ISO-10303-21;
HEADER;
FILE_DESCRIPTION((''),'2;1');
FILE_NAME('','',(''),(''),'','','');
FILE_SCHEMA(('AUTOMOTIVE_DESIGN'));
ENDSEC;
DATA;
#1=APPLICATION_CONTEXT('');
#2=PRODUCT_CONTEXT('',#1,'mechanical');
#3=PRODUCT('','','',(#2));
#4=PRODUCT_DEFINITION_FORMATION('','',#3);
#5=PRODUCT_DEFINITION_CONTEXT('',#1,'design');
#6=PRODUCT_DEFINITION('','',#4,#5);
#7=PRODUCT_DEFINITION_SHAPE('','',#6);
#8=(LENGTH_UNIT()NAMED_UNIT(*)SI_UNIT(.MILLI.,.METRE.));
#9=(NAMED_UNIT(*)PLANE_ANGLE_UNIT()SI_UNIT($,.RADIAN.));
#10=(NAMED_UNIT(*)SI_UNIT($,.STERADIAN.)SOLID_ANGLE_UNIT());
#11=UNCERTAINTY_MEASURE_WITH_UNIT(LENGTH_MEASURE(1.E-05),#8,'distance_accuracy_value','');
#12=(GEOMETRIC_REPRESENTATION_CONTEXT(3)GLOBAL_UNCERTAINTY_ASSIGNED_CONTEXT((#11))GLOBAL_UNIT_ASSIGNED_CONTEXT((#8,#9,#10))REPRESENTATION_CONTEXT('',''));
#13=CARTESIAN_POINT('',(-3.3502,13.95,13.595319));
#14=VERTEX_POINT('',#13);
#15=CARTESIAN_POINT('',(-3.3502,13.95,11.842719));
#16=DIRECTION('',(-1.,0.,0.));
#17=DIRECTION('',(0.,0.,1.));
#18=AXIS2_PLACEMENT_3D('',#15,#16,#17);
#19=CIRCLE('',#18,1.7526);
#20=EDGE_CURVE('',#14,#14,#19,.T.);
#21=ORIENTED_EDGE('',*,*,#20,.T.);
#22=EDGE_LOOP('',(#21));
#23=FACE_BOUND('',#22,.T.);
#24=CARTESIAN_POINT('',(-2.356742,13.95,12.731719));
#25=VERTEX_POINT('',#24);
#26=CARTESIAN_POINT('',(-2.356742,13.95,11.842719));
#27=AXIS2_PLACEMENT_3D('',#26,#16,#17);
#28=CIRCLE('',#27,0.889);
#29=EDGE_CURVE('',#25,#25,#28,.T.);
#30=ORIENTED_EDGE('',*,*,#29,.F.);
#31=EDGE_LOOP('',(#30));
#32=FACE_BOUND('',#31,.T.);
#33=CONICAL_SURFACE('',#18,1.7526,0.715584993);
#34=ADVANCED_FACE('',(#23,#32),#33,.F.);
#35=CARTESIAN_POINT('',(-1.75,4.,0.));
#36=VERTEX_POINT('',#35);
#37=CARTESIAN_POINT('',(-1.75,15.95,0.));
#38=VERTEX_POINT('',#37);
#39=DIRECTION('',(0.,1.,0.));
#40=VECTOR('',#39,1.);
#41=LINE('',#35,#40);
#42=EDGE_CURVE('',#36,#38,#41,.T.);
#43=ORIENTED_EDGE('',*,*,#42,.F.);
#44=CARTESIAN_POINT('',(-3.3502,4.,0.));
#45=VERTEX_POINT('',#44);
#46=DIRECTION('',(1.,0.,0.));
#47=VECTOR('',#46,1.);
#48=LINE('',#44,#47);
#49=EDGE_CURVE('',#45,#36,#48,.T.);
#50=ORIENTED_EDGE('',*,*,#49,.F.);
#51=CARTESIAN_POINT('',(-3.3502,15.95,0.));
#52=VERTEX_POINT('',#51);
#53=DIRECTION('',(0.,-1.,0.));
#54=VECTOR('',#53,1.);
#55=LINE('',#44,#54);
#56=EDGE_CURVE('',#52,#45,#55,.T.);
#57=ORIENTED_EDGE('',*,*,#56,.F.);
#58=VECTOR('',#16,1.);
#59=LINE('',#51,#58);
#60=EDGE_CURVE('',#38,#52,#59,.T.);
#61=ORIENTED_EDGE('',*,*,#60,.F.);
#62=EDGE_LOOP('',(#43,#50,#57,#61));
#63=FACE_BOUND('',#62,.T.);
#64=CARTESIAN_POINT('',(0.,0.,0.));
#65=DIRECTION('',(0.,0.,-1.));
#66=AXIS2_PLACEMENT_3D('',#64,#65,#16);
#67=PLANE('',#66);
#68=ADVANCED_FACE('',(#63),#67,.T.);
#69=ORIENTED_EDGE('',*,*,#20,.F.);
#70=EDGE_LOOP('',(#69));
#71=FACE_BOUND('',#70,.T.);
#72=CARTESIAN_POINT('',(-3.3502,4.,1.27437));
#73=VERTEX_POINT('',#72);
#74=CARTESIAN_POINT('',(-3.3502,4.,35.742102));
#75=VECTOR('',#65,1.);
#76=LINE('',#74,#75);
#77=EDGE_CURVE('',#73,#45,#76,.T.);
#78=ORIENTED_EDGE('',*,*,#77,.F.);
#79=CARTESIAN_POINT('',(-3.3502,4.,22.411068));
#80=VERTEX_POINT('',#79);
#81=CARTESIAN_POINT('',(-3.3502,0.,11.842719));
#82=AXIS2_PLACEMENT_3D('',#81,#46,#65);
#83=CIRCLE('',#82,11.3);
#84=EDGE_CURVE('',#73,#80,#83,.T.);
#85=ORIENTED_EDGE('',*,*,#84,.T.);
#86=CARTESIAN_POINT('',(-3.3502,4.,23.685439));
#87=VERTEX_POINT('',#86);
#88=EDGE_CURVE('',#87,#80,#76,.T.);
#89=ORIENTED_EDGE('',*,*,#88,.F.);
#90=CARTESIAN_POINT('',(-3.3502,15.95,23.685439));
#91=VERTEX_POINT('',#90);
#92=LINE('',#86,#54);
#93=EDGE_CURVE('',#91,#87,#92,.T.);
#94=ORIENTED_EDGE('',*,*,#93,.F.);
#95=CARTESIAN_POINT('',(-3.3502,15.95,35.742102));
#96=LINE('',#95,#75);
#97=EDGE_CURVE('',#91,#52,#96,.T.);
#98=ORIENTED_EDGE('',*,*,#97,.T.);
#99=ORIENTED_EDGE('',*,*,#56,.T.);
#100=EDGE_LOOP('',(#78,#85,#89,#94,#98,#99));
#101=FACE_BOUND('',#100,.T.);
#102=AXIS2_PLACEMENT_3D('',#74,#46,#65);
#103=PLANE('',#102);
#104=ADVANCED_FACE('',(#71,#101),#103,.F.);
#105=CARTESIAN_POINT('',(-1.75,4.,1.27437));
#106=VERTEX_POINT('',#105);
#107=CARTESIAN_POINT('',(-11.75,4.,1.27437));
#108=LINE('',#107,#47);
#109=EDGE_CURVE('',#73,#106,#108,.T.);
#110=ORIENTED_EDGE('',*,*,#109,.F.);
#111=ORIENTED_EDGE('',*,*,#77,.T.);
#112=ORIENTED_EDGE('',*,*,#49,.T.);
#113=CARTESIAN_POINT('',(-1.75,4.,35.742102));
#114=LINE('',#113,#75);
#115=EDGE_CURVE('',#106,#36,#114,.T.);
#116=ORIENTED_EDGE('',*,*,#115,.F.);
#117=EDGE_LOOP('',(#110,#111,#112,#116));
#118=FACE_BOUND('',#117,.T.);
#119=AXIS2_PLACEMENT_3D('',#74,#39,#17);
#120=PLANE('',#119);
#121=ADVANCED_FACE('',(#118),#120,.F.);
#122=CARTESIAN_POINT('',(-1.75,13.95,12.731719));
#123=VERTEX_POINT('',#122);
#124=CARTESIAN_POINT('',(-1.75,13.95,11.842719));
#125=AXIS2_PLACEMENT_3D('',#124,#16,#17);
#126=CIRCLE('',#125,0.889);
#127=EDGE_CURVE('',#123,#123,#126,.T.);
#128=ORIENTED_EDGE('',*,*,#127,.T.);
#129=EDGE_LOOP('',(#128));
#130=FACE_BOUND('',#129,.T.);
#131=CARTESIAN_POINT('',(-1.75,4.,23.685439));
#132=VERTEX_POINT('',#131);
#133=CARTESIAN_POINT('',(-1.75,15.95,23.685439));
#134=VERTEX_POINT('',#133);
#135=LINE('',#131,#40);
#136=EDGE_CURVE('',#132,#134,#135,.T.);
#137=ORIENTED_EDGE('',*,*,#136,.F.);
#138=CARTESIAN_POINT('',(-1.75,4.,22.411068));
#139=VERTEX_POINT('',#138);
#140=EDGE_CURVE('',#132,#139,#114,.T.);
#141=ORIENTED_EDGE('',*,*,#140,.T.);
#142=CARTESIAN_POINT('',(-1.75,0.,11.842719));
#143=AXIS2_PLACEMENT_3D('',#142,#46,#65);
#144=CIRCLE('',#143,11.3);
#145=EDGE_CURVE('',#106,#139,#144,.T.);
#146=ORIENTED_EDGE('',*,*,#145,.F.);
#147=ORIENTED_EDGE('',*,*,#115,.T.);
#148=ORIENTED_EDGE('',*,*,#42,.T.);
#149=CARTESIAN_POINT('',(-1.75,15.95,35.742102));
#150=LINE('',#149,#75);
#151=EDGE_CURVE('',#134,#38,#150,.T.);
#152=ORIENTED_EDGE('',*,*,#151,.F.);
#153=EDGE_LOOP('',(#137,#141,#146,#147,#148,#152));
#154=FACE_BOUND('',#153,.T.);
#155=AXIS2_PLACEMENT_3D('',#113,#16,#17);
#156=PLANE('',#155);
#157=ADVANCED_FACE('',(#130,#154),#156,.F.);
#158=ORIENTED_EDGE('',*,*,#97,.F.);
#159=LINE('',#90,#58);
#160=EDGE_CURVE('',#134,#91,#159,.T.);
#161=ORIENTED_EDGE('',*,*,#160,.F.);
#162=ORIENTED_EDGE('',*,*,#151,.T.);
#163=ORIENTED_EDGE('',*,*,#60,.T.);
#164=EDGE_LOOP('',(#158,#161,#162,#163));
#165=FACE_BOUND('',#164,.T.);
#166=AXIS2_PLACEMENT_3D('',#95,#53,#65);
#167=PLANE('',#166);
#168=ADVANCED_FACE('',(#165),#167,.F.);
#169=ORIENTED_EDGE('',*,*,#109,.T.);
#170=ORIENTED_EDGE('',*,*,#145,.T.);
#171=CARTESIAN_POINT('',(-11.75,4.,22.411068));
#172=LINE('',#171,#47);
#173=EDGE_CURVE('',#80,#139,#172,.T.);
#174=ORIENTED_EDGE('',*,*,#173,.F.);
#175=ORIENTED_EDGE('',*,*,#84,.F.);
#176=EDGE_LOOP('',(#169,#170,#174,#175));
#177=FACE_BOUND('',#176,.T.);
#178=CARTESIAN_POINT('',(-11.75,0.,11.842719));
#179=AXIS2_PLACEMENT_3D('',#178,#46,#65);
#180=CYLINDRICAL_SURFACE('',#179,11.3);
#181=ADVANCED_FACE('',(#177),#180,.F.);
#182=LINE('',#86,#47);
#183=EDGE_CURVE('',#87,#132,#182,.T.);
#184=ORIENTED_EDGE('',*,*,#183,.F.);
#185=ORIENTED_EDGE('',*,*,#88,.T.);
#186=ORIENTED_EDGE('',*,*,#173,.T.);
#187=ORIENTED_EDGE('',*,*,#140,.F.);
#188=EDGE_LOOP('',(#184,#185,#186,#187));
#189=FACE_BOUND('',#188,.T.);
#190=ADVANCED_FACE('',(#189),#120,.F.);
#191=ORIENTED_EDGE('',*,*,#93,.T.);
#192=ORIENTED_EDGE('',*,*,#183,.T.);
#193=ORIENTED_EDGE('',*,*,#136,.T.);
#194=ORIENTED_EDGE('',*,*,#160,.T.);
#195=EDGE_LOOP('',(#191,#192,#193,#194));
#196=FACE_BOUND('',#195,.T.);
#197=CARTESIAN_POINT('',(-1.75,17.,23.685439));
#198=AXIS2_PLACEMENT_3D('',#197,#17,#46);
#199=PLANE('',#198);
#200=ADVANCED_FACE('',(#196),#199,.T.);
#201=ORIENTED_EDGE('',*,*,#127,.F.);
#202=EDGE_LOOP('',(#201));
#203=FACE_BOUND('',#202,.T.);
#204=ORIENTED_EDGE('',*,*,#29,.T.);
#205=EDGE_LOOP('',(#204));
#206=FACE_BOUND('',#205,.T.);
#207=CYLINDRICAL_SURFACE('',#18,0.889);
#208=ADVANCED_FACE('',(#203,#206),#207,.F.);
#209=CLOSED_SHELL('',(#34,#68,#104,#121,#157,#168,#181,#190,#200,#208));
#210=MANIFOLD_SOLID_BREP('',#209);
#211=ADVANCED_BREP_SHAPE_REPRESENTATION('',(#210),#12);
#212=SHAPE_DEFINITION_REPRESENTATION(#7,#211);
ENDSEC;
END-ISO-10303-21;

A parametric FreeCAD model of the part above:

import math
import FreeCAD as App
import Part
import Sketcher


def add_polygon(sketch, points):
    """Adds a closed chain of lines whose ends are joined by coincident constraints."""
    first, n = sketch.GeometryCount, len(points)
    for a, b in zip(points, points[1:] + points[:1]):
        sketch.addGeometry(Part.LineSegment(App.Vector(*a, 0), App.Vector(*b, 0)), False)
    for i in range(n):
        sketch.addConstraint(Sketcher.Constraint("Coincident", first + i, 2, first + (i + 1) % n, 1))

doc = App.newDocument("Part")
body = doc.addObject("PartDesign::Body", "Body")

# Sketch on XY plane
sketch1 = body.newObject("Sketcher::SketchObject", "Sketch")
sketch1.AttachmentSupport = (doc.getObject("XY_Plane"), [""])
sketch1.MapMode = "FlatFace"
add_polygon(sketch1, [(-3.4, 15.9), (-3.4, 4), (-1.8, 4), (-1.8, 15.9)])  # lines 0-3
sketch1.addConstraint([
    Sketcher.Constraint("Vertical", 0),
    Sketcher.Constraint("Horizontal", 1),
    Sketcher.Constraint("Vertical", 2),
    Sketcher.Constraint("Horizontal", 3),
    Sketcher.Constraint("DistanceY", -1, 1, 0, 2, 4.0),
    Sketcher.Constraint("DistanceY", 0, 2, 0, 1, 11.95),
    Sketcher.Constraint("DistanceX", 1, 2, -1, 1, 1.75),
    Sketcher.Constraint("DistanceX", 1, 1, 1, 2, 1.6002),
])
pad1 = body.newObject("PartDesign::Pad", "Pad")
pad1.Profile = sketch1
pad1.Length = 23.685439

# Sketch on YZ plane
sketch2 = body.newObject("Sketcher::SketchObject", "Sketch001")
sketch2.AttachmentSupport = (doc.getObject("YZ_Plane"), [""])
sketch2.MapMode = "FlatFace"
sketch2.AttachmentOffset = App.Placement(App.Vector(0, 0, -1.75), App.Rotation())
sketch2.addGeometry([
    Part.LineSegment(App.Vector(4, 22, 0), App.Vector(4, 1, 0)),
    Part.ArcOfCircle(Part.Circle(App.Vector(0, 12, 0), App.Vector(0, 0, 1), 11), math.radians(-69), math.radians(69)),
], False)
sketch2.addConstraint([
    Sketcher.Constraint("Coincident", 0, 1, 1, 2),
    Sketcher.Constraint("Coincident", 1, 1, 0, 2),
    Sketcher.Constraint("Vertical", 0),
    Sketcher.Constraint("PointOnObject", 1, 3, -2),
    Sketcher.Constraint("Radius", 1, 11.3),
    Sketcher.Constraint("DistanceX", -1, 1, 0, 1, 4.0),
    Sketcher.Constraint("DistanceY", -1, 1, 1, 3, 11.842719),
])
pocket1 = body.newObject("PartDesign::Pocket", "Pocket")
pocket1.Profile = sketch2
pocket1.Length = 10

# Sketch on YZ plane
sketch3 = body.newObject("Sketcher::SketchObject", "Sketch002")
sketch3.AttachmentSupport = (doc.getObject("YZ_Plane"), [""])
sketch3.MapMode = "FlatFace"
sketch3.AttachmentOffset = App.Placement(App.Vector(0, 0, -3.3502), App.Rotation())
sketch3.addGeometry(Part.Circle(App.Vector(13.9, 11.8, 0), App.Vector(0, 0, 1), 0.9), False)
sketch3.addConstraint([
    Sketcher.Constraint("Diameter", 0, 1.778),
    Sketcher.Constraint("DistanceX", -1, 1, 0, 3, 13.95),
    Sketcher.Constraint("DistanceY", -1, 1, 0, 3, 11.842719),
])
doc.recompute()
hole = body.newObject("PartDesign::Hole", "Hole")
hole.Profile = sketch3
hole.ThreadType = "None"
hole.Diameter = 1.778
hole.DepthType = "Dimension"
hole.Depth = 3
hole.DrillPoint = "Angled"
hole.DrillPointAngle = 118
hole.HoleCutType = "Countersink"
hole.HoleCutDiameter = 3.5052
hole.HoleCutCountersinkAngle = 82
hole.Reversed = True

doc.recompute()
